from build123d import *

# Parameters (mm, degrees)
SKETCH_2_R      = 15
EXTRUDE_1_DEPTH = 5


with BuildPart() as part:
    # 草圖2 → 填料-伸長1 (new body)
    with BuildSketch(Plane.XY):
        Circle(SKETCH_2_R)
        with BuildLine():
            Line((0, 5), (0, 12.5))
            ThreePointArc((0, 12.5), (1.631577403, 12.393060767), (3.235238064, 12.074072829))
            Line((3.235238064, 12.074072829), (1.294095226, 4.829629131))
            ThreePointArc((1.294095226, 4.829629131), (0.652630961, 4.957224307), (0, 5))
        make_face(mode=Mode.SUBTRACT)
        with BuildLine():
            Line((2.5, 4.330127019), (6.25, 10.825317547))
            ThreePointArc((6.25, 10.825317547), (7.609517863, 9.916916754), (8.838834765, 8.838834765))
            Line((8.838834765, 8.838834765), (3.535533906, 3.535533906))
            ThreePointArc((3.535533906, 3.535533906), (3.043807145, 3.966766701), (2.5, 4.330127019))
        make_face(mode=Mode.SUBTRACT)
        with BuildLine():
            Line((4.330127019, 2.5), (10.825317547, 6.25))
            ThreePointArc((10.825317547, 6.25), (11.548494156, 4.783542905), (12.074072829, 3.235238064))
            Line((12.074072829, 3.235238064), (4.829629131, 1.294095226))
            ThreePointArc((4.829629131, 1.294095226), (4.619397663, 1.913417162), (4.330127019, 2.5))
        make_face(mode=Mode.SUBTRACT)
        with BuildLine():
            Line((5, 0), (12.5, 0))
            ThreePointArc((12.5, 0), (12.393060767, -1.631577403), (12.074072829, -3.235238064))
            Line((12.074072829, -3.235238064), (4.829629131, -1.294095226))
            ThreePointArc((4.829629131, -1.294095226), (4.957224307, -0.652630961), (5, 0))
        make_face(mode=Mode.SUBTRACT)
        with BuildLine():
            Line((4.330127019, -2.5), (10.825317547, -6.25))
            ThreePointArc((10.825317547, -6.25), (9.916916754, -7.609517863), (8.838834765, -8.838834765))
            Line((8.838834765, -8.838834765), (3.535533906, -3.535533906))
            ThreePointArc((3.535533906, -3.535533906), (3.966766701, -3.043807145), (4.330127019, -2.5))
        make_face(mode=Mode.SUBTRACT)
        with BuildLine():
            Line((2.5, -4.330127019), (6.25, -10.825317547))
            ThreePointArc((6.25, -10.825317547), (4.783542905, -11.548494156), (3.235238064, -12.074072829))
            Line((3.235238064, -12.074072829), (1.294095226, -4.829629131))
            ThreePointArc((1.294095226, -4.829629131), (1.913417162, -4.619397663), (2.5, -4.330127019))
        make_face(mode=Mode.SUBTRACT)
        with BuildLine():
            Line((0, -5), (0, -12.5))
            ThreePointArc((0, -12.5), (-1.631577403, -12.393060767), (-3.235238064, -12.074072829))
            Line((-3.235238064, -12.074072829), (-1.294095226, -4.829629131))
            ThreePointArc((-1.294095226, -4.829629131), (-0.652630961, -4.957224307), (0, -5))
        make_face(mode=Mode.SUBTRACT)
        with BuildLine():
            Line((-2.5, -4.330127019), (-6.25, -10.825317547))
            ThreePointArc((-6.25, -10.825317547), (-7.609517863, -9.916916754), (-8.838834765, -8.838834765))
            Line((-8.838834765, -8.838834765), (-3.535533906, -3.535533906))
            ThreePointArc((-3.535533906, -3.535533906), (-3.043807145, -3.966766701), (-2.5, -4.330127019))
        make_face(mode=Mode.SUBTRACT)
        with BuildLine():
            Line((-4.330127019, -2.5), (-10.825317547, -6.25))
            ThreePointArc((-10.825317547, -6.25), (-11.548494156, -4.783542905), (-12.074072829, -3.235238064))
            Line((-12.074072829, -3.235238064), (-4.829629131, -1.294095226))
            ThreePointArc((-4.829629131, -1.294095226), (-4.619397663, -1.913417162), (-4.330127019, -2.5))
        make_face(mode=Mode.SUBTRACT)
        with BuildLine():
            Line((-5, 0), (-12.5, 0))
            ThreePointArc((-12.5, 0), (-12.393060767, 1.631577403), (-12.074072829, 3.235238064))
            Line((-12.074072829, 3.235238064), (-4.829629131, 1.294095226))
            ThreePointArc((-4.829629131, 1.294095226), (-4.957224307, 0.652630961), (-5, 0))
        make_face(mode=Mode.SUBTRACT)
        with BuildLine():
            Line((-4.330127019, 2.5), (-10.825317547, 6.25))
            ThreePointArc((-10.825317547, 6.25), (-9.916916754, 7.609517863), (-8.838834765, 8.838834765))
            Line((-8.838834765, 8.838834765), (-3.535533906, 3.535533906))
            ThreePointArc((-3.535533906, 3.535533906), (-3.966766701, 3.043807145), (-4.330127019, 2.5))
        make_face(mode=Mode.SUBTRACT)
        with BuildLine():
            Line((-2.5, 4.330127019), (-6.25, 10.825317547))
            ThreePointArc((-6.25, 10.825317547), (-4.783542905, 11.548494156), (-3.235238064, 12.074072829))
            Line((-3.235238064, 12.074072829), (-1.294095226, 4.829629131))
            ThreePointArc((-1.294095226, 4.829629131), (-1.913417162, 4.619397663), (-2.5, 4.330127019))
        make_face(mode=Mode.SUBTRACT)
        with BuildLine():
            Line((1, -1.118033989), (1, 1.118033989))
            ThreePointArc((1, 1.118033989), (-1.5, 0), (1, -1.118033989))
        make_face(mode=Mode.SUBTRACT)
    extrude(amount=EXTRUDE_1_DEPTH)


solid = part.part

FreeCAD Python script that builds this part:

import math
import FreeCAD as App
import Part
import Sketcher

V = App.Vector
Q = App.Units.Quantity

doc = App.newDocument("Part")
body = doc.addObject("PartDesign::Body", "Body")

sketch1 = body.newObject("Sketcher::SketchObject", "Sketch")
sketch1.AttachmentSupport = (doc.getObject("XY_Plane"), [""])
sketch1.MapMode = "FlatFace"
sketch1.addGeometry(Part.Circle(V(0, 0, 0), V(0, 0, 1), 15), False)
sketch1.addGeometry(Part.ArcOfCircle(Part.Circle(V(0, 0, 0), V(0, 0, 1), 5), math.radians(-135), math.radians(-120)), False)
sketch1.addGeometry(Part.LineSegment(V(-2.5, -4.3, 0), V(-6.2, -10.8, 0)), False)
sketch1.addGeometry(Part.ArcOfCircle(Part.Circle(V(0, 0, 0), V(0, 0, 1), 12.5), math.radians(-135), math.radians(-120)), False)
sketch1.addGeometry(Part.LineSegment(V(-8.8, -8.8, 0), V(-3.5, -3.5, 0)), False)
sketch1.addGeometry(Part.ArcOfCircle(Part.Circle(V(0, 0, 0), V(0, 0, 1), 5), math.radians(-105), math.radians(-90)), False)
sketch1.addGeometry(Part.LineSegment(V(0, -5, 0), V(0, -12.5, 0)), False)
sketch1.addGeometry(Part.ArcOfCircle(Part.Circle(V(0, 0, 0), V(0, 0, 1), 12.5), math.radians(-105), math.radians(-90)), False)
sketch1.addGeometry(Part.LineSegment(V(-3.2, -12.1, 0), V(-1.3, -4.8, 0)), False)
sketch1.addGeometry(Part.ArcOfCircle(Part.Circle(V(0, 0, 0), V(0, 0, 1), 5), math.radians(-165), math.radians(-150)), False)
sketch1.addGeometry(Part.LineSegment(V(-4.3, -2.5, 0), V(-10.8, -6.2, 0)), False)
sketch1.addGeometry(Part.ArcOfCircle(Part.Circle(V(0, 0, 0), V(0, 0, 1), 12.5), math.radians(-165), math.radians(-150)), False)
sketch1.addGeometry(Part.LineSegment(V(-12.1, -3.2, 0), V(-4.8, -1.3, 0)), False)
sketch1.addGeometry(Part.ArcOfCircle(Part.Circle(V(0, 0, 0), V(0, 0, 1), 5), math.radians(-75), math.radians(-60)), False)
sketch1.addGeometry(Part.LineSegment(V(2.5, -4.3, 0), V(6.2, -10.8, 0)), False)
sketch1.addGeometry(Part.ArcOfCircle(Part.Circle(V(0, 0, 0), V(0, 0, 1), 12.5), math.radians(-75), math.radians(-60)), False)
sketch1.addGeometry(Part.LineSegment(V(3.2, -12.1, 0), V(1.3, -4.8, 0)), False)
sketch1.addGeometry(Part.ArcOfCircle(Part.Circle(V(0, 0, 0), V(0, 0, 1), 5), math.radians(-45), math.radians(-30)), False)
sketch1.addGeometry(Part.LineSegment(V(4.3, -2.5, 0), V(10.8, -6.2, 0)), False)
sketch1.addGeometry(Part.ArcOfCircle(Part.Circle(V(0, 0, 0), V(0, 0, 1), 12.5), math.radians(-45), math.radians(-30)), False)
sketch1.addGeometry(Part.LineSegment(V(8.8, -8.8, 0), V(3.5, -3.5, 0)), False)
sketch1.addGeometry(Part.ArcOfCircle(Part.Circle(V(0, 0, 0), V(0, 0, 1), 5), math.radians(-15), math.radians(0)), False)
sketch1.addGeometry(Part.LineSegment(V(5, 0, 0), V(12.5, 0, 0)), False)
sketch1.addGeometry(Part.ArcOfCircle(Part.Circle(V(0, 0, 0), V(0, 0, 1), 12.5), math.radians(-15), math.radians(0)), False)
sketch1.addGeometry(Part.LineSegment(V(12.1, -3.2, 0), V(4.8, -1.3, 0)), False)
sketch1.addGeometry(Part.ArcOfCircle(Part.Circle(V(0, 0, 0), V(0, 0, 1), 5), math.radians(165), math.radians(180)), False)
sketch1.addGeometry(Part.LineSegment(V(-5, 0, 0), V(-12.5, 0, 0)), False)
sketch1.addGeometry(Part.ArcOfCircle(Part.Circle(V(0, 0, 0), V(0, 0, 1), 12.5), math.radians(165), math.radians(180)), False)
sketch1.addGeometry(Part.LineSegment(V(-12.1, 3.2, 0), V(-4.8, 1.3, 0)), False)
sketch1.addGeometry(Part.ArcOfCircle(Part.Circle(V(0, 0, 0), V(0, 0, 1), 5), math.radians(135), math.radians(150)), False)
sketch1.addGeometry(Part.LineSegment(V(-4.3, 2.5, 0), V(-10.8, 6.2, 0)), False)
sketch1.addGeometry(Part.ArcOfCircle(Part.Circle(V(0, 0, 0), V(0, 0, 1), 12.5), math.radians(135), math.radians(150)), False)
sketch1.addGeometry(Part.LineSegment(V(-8.8, 8.8, 0), V(-3.5, 3.5, 0)), False)
sketch1.addGeometry(Part.LineSegment(V(1, 1.1, 0), V(1, -1.1, 0)), False)
sketch1.addGeometry(Part.ArcOfCircle(Part.Circle(V(0, 0, 0), V(0, 0, 1), 1.5), math.radians(48), math.radians(312)), False)
sketch1.addGeometry(Part.ArcOfCircle(Part.Circle(V(0, 0, 0), V(0, 0, 1), 5), math.radians(105), math.radians(120)), False)
sketch1.addGeometry(Part.LineSegment(V(-2.5, 4.3, 0), V(-6.2, 10.8, 0)), False)
sketch1.addGeometry(Part.ArcOfCircle(Part.Circle(V(0, 0, 0), V(0, 0, 1), 12.5), math.radians(105), math.radians(120)), False)
sketch1.addGeometry(Part.LineSegment(V(-3.2, 12.1, 0), V(-1.3, 4.8, 0)), False)
sketch1.addGeometry(Part.ArcOfCircle(Part.Circle(V(0, 0, 0), V(0, 0, 1), 5), math.radians(15), math.radians(30)), False)
sketch1.addGeometry(Part.LineSegment(V(4.3, 2.5, 0), V(10.8, 6.2, 0)), False)
sketch1.addGeometry(Part.ArcOfCircle(Part.Circle(V(0, 0, 0), V(0, 0, 1), 12.5), math.radians(15), math.radians(30)), False)
sketch1.addGeometry(Part.LineSegment(V(12.1, 3.2, 0), V(4.8, 1.3, 0)), False)
sketch1.addGeometry(Part.ArcOfCircle(Part.Circle(V(0, 0, 0), V(0, 0, 1), 5), math.radians(75), math.radians(90)), False)
sketch1.addGeometry(Part.LineSegment(V(0, 5, 0), V(0, 12.5, 0)), False)
sketch1.addGeometry(Part.ArcOfCircle(Part.Circle(V(0, 0, 0), V(0, 0, 1), 12.5), math.radians(75), math.radians(90)), False)
sketch1.addGeometry(Part.LineSegment(V(3.2, 12.1, 0), V(1.3, 4.8, 0)), False)
sketch1.addGeometry(Part.ArcOfCircle(Part.Circle(V(0, 0, 0), V(0, 0, 1), 5), math.radians(45), math.radians(60)), False)
sketch1.addGeometry(Part.LineSegment(V(2.5, 4.3, 0), V(6.2, 10.8, 0)), False)
sketch1.addGeometry(Part.ArcOfCircle(Part.Circle(V(0, 0, 0), V(0, 0, 1), 12.5), math.radians(45), math.radians(60)), False)
sketch1.addGeometry(Part.LineSegment(V(8.8, 8.8, 0), V(3.5, 3.5, 0)), False)
sketch1.addConstraint(Sketcher.Constraint("Coincident", 1, 2, 2, 1))
sketch1.addConstraint(Sketcher.Constraint("Coincident", 2, 2, 3, 2))
sketch1.addConstraint(Sketcher.Constraint("Coincident", 3, 1, 4, 1))
sketch1.addConstraint(Sketcher.Constraint("Coincident", 4, 2, 1, 1))
sketch1.addConstraint(Sketcher.Constraint("Coincident", 5, 2, 6, 1))
sketch1.addConstraint(Sketcher.Constraint("Coincident", 6, 2, 7, 2))
sketch1.addConstraint(Sketcher.Constraint("Coincident", 7, 1, 8, 1))
sketch1.addConstraint(Sketcher.Constraint("Coincident", 8, 2, 5, 1))
sketch1.addConstraint(Sketcher.Constraint("Coincident", 9, 2, 10, 1))
sketch1.addConstraint(Sketcher.Constraint("Coincident", 10, 2, 11, 2))
sketch1.addConstraint(Sketcher.Constraint("Coincident", 11, 1, 12, 1))
sketch1.addConstraint(Sketcher.Constraint("Coincident", 12, 2, 9, 1))
sketch1.addConstraint(Sketcher.Constraint("Coincident", 13, 2, 14, 1))
sketch1.addConstraint(Sketcher.Constraint("Coincident", 14, 2, 15, 2))
sketch1.addConstraint(Sketcher.Constraint("Coincident", 15, 1, 16, 1))
sketch1.addConstraint(Sketcher.Constraint("Coincident", 16, 2, 13, 1))
sketch1.addConstraint(Sketcher.Constraint("Coincident", 17, 2, 18, 1))
sketch1.addConstraint(Sketcher.Constraint("Coincident", 18, 2, 19, 2))
sketch1.addConstraint(Sketcher.Constraint("Coincident", 19, 1, 20, 1))
sketch1.addConstraint(Sketcher.Constraint("Coincident", 20, 2, 17, 1))
sketch1.addConstraint(Sketcher.Constraint("Coincident", 21, 2, 22, 1))
sketch1.addConstraint(Sketcher.Constraint("Coincident", 22, 2, 23, 2))
sketch1.addConstraint(Sketcher.Constraint("Coincident", 23, 1, 24, 1))
sketch1.addConstraint(Sketcher.Constraint("Coincident", 24, 2, 21, 1))
sketch1.addConstraint(Sketcher.Constraint("Coincident", 25, 2, 26, 1))
sketch1.addConstraint(Sketcher.Constraint("Coincident", 26, 2, 27, 2))
sketch1.addConstraint(Sketcher.Constraint("Coincident", 27, 1, 28, 1))
sketch1.addConstraint(Sketcher.Constraint("Coincident", 28, 2, 25, 1))
sketch1.addConstraint(Sketcher.Constraint("Coincident", 29, 2, 30, 1))
sketch1.addConstraint(Sketcher.Constraint("Coincident", 30, 2, 31, 2))
sketch1.addConstraint(Sketcher.Constraint("Coincident", 31, 1, 32, 1))
sketch1.addConstraint(Sketcher.Constraint("Coincident", 32, 2, 29, 1))
sketch1.addConstraint(Sketcher.Constraint("Coincident", 33, 1, 34, 1))
sketch1.addConstraint(Sketcher.Constraint("Coincident", 34, 2, 33, 2))
sketch1.addConstraint(Sketcher.Constraint("Coincident", 35, 2, 36, 1))
sketch1.addConstraint(Sketcher.Constraint("Coincident", 36, 2, 37, 2))
sketch1.addConstraint(Sketcher.Constraint("Coincident", 37, 1, 38, 1))
sketch1.addConstraint(Sketcher.Constraint("Coincident", 38, 2, 35, 1))
sketch1.addConstraint(Sketcher.Constraint("Coincident", 39, 2, 40, 1))
sketch1.addConstraint(Sketcher.Constraint("Coincident", 40, 2, 41, 2))
sketch1.addConstraint(Sketcher.Constraint("Coincident", 41, 1, 42, 1))
sketch1.addConstraint(Sketcher.Constraint("Coincident", 42, 2, 39, 1))
sketch1.addConstraint(Sketcher.Constraint("Coincident", 43, 2, 44, 1))
sketch1.addConstraint(Sketcher.Constraint("Coincident", 44, 2, 45, 2))
sketch1.addConstraint(Sketcher.Constraint("Coincident", 45, 1, 46, 1))
sketch1.addConstraint(Sketcher.Constraint("Coincident", 46, 2, 43, 1))
sketch1.addConstraint(Sketcher.Constraint("Coincident", 47, 2, 48, 1))
sketch1.addConstraint(Sketcher.Constraint("Coincident", 48, 2, 49, 2))
sketch1.addConstraint(Sketcher.Constraint("Coincident", 49, 1, 50, 1))
sketch1.addConstraint(Sketcher.Constraint("Coincident", 50, 2, 47, 1))
sketch1.addConstraint(Sketcher.Constraint("Vertical", 6))
sketch1.addConstraint(Sketcher.Constraint("Horizontal", 22))
sketch1.addConstraint(Sketcher.Constraint("Horizontal", 26))
sketch1.addConstraint(Sketcher.Constraint("Vertical", 33))
sketch1.addConstraint(Sketcher.Constraint("Vertical", 44))
sketch1.addConstraint(Sketcher.Constraint("Coincident", 0, 3, -1, 1))
sketch1.addConstraint(Sketcher.Constraint("Coincident", 1, 3, -1, 1))
sketch1.addConstraint(Sketcher.Constraint("Coincident", 3, 3, -1, 1))
sketch1.addConstraint(Sketcher.Constraint("Coincident", 5, 3, -1, 1))
sketch1.addConstraint(Sketcher.Constraint("Coincident", 7, 3, -1, 1))
sketch1.addConstraint(Sketcher.Constraint("Coincident", 9, 3, -1, 1))
sketch1.addConstraint(Sketcher.Constraint("Coincident", 11, 3, -1, 1))
sketch1.addConstraint(Sketcher.Constraint("Coincident", 13, 3, -1, 1))
sketch1.addConstraint(Sketcher.Constraint("Coincident", 15, 3, -1, 1))
sketch1.addConstraint(Sketcher.Constraint("Coincident", 17, 3, -1, 1))
sketch1.addConstraint(Sketcher.Constraint("Coincident", 19, 3, -1, 1))
sketch1.addConstraint(Sketcher.Constraint("Coincident", 21, 3, -1, 1))
sketch1.addConstraint(Sketcher.Constraint("Coincident", 23, 3, -1, 1))
sketch1.addConstraint(Sketcher.Constraint("Coincident", 25, 3, -1, 1))
sketch1.addConstraint(Sketcher.Constraint("Coincident", 27, 3, -1, 1))
sketch1.addConstraint(Sketcher.Constraint("Coincident", 29, 3, -1, 1))
sketch1.addConstraint(Sketcher.Constraint("Coincident", 31, 3, -1, 1))
sketch1.addConstraint(Sketcher.Constraint("Coincident", 34, 3, -1, 1))
sketch1.addConstraint(Sketcher.Constraint("Coincident", 35, 3, -1, 1))
sketch1.addConstraint(Sketcher.Constraint("Coincident", 37, 3, -1, 1))
sketch1.addConstraint(Sketcher.Constraint("Coincident", 39, 3, -1, 1))
sketch1.addConstraint(Sketcher.Constraint("Coincident", 41, 3, -1, 1))
sketch1.addConstraint(Sketcher.Constraint("Coincident", 43, 3, -1, 1))
sketch1.addConstraint(Sketcher.Constraint("Coincident", 45, 3, -1, 1))
sketch1.addConstraint(Sketcher.Constraint("Coincident", 47, 3, -1, 1))
sketch1.addConstraint(Sketcher.Constraint("Coincident", 49, 3, -1, 1))
sketch1.addConstraint(Sketcher.Constraint("Equal", 1, 5))
sketch1.addConstraint(Sketcher.Constraint("Equal", 3, 7))
sketch1.addConstraint(Sketcher.Constraint("Equal", 5, 9))
sketch1.addConstraint(Sketcher.Constraint("Equal", 7, 11))
sketch1.addConstraint(Sketcher.Constraint("Equal", 9, 13))
sketch1.addConstraint(Sketcher.Constraint("Equal", 11, 15))
sketch1.addConstraint(Sketcher.Constraint("Equal", 13, 17))
sketch1.addConstraint(Sketcher.Constraint("Equal", 15, 19))
sketch1.addConstraint(Sketcher.Constraint("Equal", 17, 21))
sketch1.addConstraint(Sketcher.Constraint("Equal", 19, 23))
sketch1.addConstraint(Sketcher.Constraint("Equal", 21, 25))
sketch1.addConstraint(Sketcher.Constraint("Equal", 23, 27))
sketch1.addConstraint(Sketcher.Constraint("Equal", 25, 29))
sketch1.addConstraint(Sketcher.Constraint("Equal", 27, 31))
sketch1.addConstraint(Sketcher.Constraint("Equal", 29, 35))
sketch1.addConstraint(Sketcher.Constraint("Equal", 31, 37))
sketch1.addConstraint(Sketcher.Constraint("Equal", 35, 39))
sketch1.addConstraint(Sketcher.Constraint("Equal", 37, 41))
sketch1.addConstraint(Sketcher.Constraint("Equal", 39, 43))
sketch1.addConstraint(Sketcher.Constraint("Equal", 41, 45))
sketch1.addConstraint(Sketcher.Constraint("Equal", 43, 47))
sketch1.addConstraint(Sketcher.Constraint("Equal", 45, 49))
sketch1.addConstraint(Sketcher.Constraint("PointOnObject", 5, 2, -2))
sketch1.addConstraint(Sketcher.Constraint("PointOnObject", 21, 2, -1))
sketch1.addConstraint(Sketcher.Constraint("PointOnObject", 25, 2, -1))
sketch1.addConstraint(Sketcher.Constraint("PointOnObject", 43, 2, -2))
sketch1.addConstraint(Sketcher.Constraint("Perpendicular", 10, 14))
sketch1.addConstraint(Sketcher.Constraint("Perpendicular", 12, 16))
sketch1.addConstraint(Sketcher.Constraint("Perpendicular", 2, 18))
sketch1.addConstraint(Sketcher.Constraint("Perpendicular", 4, 20))
sketch1.addConstraint(Sketcher.Constraint("Perpendicular", 8, 24))
sketch1.addConstraint(Sketcher.Constraint("Parallel", 24, 28))
sketch1.addConstraint(Sketcher.Constraint("Parallel", 18, 30))
sketch1.addConstraint(Sketcher.Constraint("Parallel", 20, 32))
sketch1.addConstraint(Sketcher.Constraint("Parallel", 14, 36))
sketch1.addConstraint(Sketcher.Constraint("Parallel", 16, 38))
sketch1.addConstraint(Sketcher.Constraint("Perpendicular", 36, 40))
sketch1.addConstraint(Sketcher.Constraint("Perpendicular", 38, 42))
sketch1.addConstraint(Sketcher.Constraint("Perpendicular", 28, 46))
sketch1.addConstraint(Sketcher.Constraint("Perpendicular", 30, 48))
sketch1.addConstraint(Sketcher.Constraint("Perpendicular", 32, 50))
sketch1.addConstraint(Sketcher.Constraint("Horizontal", 1, 2, 13, 2))
sketch1.addConstraint(Sketcher.Constraint("Horizontal", 2, 2, 14, 2))
sketch1.addConstraint(Sketcher.Constraint("Horizontal", 7, 1, 15, 1))
sketch1.addConstraint(Sketcher.Constraint("Horizontal", 8, 2, 16, 2))
sketch1.addConstraint(Sketcher.Constraint("Horizontal", 9, 2, 17, 2))
sketch1.addConstraint(Sketcher.Constraint("Horizontal", 3, 1, 19, 1))
sketch1.addConstraint(Sketcher.Constraint("Horizontal", 4, 2, 20, 2))
sketch1.addConstraint(Sketcher.Constraint("Horizontal", 11, 1, 23, 1))
sketch1.addConstraint(Sketcher.Constraint("Horizontal", 29, 2, 39, 2))
sketch1.addConstraint(Sketcher.Constraint("Horizontal", 27, 1, 41, 1))
sketch1.addConstraint(Sketcher.Constraint("Horizontal", 37, 1, 45, 1))
sketch1.addConstraint(Sketcher.Constraint("Horizontal", 35, 2, 47, 2))
sketch1.addConstraint(Sketcher.Constraint("Horizontal", 31, 1, 49, 1))
sketch1.addConstraint(Sketcher.Constraint("Vertical", 11, 1, 27, 1))
sketch1.addConstraint(Sketcher.Constraint("Vertical", 9, 2, 29, 2))
sketch1.addConstraint(Sketcher.Constraint("Vertical", 3, 1, 31, 1))
sketch1.addConstraint(Sketcher.Constraint("Vertical", 1, 2, 35, 2))
sketch1.addConstraint(Sketcher.Constraint("Vertical", 7, 1, 37, 1))
sketch1.addConstraint(Sketcher.Constraint("Diameter", 0, 30.0))
sketch1.addConstraint(Sketcher.Constraint("Radius", 1, 5.0))
sketch1.addConstraint(Sketcher.Constraint("Radius", 3, 12.5))
sketch1.addConstraint(Sketcher.Constraint("Radius", 34, 1.5))
sketch1.addConstraint(Sketcher.Constraint("Angle", 2, Q("-120 deg")))
sketch1.addConstraint(Sketcher.Constraint("Angle", 8, Q("75 deg")))
sketch1.addConstraint(Sketcher.Constraint("DistanceX", -1, 1, 33, 1, 1.0))
sketch1.addConstraint(Sketcher.Constraint("DistanceX", 1, 2, -1, 1, 2.5))
sketch1.addConstraint(Sketcher.Constraint("DistanceY", 9, 2, -1, 1, 2.5))
sketch1.addConstraint(Sketcher.Constraint("DistanceX", 7, 1, -1, 1, 3.235238))
sketch1.addConstraint(Sketcher.Constraint("DistanceY", 11, 1, -1, 1, 3.235238))
sketch1.addConstraint(Sketcher.Constraint("DistanceX", 3, 1, -1, 1, 8.838835))
pad1 = body.newObject("PartDesign::Pad", "Pad")
pad1.Profile = sketch1
pad1.Length = 5

doc.recompute()
